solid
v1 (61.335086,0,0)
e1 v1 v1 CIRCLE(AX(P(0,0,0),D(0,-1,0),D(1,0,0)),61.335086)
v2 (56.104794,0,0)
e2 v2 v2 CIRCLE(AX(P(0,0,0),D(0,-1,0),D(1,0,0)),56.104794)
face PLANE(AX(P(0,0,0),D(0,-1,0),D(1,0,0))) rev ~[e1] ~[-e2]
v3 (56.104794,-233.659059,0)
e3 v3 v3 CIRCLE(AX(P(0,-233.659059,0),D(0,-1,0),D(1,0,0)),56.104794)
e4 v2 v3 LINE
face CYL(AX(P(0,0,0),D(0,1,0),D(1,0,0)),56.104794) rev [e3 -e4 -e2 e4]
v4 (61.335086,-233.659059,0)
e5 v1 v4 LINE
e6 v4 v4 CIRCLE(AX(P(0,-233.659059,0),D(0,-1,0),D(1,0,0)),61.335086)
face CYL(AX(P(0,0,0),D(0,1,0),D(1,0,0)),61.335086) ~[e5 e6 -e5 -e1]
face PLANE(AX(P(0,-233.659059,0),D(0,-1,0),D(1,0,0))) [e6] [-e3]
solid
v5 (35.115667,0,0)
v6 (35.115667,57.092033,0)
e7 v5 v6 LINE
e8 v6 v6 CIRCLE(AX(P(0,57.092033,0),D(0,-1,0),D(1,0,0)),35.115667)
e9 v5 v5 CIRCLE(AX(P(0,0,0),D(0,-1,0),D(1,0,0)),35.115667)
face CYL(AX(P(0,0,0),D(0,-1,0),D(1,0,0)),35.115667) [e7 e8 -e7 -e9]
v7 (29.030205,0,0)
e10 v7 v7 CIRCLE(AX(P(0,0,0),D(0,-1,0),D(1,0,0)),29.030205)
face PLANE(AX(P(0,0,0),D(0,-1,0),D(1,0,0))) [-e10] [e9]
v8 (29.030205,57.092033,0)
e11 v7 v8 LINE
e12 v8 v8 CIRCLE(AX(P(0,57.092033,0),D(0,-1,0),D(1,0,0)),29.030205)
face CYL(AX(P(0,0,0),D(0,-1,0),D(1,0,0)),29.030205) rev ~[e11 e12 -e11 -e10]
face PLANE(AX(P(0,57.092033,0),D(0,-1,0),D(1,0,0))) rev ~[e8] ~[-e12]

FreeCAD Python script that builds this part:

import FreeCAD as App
import Part
import Sketcher
from FreeCAD import Vector

doc = App.newDocument("Part")
body = doc.addObject("PartDesign::Body", "Body")

# Sketch on XZ plane
sketch1 = doc.addObject("Sketcher::SketchObject", "Sketch")
body.addObject(sketch1)
sketch1.AttachmentSupport = (doc.XZ_Plane, [""])
sketch1.MapMode = "FlatFace"
sketch1.addGeometry(Part.Circle(Vector(0, 0, 0), Vector(0, 0, 1), 61), False)
sketch1.addGeometry(Part.Circle(Vector(0, 0, 0), Vector(0, 0, 1), 56), False)
sketch1.addConstraint(Sketcher.Constraint("Coincident", 0, 3, -1, 1))
sketch1.addConstraint(Sketcher.Constraint("Coincident", 1, 3, -1, 1))
sketch1.addConstraint(Sketcher.Constraint("Diameter", 0, 122.670172))
sketch1.addConstraint(Sketcher.Constraint("Diameter", 1, 112.209588))
pad1 = doc.addObject("PartDesign::Pad", "Pad")
body.addObject(pad1)
pad1.Profile = sketch1
pad1.Length = 233.659059
body2 = doc.addObject("PartDesign::Body", "Body001")

# Sketch on XZ plane
sketch2 = doc.addObject("Sketcher::SketchObject", "Sketch001")
body2.addObject(sketch2)
sketch2.AttachmentSupport = (doc.getObject("XZ_Plane001"), [""])
sketch2.MapMode = "FlatFace"
sketch2.addGeometry(Part.Circle(Vector(0, 0, 0), Vector(0, 0, 1), 35), False)
sketch2.addGeometry(Part.Circle(Vector(0, 0, 0), Vector(0, 0, 1), 29), False)
sketch2.addConstraint(Sketcher.Constraint("Coincident", 0, 3, -1, 1))
sketch2.addConstraint(Sketcher.Constraint("Coincident", 1, 3, -1, 1))
sketch2.addConstraint(Sketcher.Constraint("Diameter", 1, 58.06041))
sketch2.addConstraint(Sketcher.Constraint("Diameter", 0, 70.231334))
pad2 = doc.addObject("PartDesign::Pad", "Pad001")
body2.addObject(pad2)
pad2.Profile = sketch2
pad2.Length = 57.092033
pad2.Reversed = True

doc.recompute()
